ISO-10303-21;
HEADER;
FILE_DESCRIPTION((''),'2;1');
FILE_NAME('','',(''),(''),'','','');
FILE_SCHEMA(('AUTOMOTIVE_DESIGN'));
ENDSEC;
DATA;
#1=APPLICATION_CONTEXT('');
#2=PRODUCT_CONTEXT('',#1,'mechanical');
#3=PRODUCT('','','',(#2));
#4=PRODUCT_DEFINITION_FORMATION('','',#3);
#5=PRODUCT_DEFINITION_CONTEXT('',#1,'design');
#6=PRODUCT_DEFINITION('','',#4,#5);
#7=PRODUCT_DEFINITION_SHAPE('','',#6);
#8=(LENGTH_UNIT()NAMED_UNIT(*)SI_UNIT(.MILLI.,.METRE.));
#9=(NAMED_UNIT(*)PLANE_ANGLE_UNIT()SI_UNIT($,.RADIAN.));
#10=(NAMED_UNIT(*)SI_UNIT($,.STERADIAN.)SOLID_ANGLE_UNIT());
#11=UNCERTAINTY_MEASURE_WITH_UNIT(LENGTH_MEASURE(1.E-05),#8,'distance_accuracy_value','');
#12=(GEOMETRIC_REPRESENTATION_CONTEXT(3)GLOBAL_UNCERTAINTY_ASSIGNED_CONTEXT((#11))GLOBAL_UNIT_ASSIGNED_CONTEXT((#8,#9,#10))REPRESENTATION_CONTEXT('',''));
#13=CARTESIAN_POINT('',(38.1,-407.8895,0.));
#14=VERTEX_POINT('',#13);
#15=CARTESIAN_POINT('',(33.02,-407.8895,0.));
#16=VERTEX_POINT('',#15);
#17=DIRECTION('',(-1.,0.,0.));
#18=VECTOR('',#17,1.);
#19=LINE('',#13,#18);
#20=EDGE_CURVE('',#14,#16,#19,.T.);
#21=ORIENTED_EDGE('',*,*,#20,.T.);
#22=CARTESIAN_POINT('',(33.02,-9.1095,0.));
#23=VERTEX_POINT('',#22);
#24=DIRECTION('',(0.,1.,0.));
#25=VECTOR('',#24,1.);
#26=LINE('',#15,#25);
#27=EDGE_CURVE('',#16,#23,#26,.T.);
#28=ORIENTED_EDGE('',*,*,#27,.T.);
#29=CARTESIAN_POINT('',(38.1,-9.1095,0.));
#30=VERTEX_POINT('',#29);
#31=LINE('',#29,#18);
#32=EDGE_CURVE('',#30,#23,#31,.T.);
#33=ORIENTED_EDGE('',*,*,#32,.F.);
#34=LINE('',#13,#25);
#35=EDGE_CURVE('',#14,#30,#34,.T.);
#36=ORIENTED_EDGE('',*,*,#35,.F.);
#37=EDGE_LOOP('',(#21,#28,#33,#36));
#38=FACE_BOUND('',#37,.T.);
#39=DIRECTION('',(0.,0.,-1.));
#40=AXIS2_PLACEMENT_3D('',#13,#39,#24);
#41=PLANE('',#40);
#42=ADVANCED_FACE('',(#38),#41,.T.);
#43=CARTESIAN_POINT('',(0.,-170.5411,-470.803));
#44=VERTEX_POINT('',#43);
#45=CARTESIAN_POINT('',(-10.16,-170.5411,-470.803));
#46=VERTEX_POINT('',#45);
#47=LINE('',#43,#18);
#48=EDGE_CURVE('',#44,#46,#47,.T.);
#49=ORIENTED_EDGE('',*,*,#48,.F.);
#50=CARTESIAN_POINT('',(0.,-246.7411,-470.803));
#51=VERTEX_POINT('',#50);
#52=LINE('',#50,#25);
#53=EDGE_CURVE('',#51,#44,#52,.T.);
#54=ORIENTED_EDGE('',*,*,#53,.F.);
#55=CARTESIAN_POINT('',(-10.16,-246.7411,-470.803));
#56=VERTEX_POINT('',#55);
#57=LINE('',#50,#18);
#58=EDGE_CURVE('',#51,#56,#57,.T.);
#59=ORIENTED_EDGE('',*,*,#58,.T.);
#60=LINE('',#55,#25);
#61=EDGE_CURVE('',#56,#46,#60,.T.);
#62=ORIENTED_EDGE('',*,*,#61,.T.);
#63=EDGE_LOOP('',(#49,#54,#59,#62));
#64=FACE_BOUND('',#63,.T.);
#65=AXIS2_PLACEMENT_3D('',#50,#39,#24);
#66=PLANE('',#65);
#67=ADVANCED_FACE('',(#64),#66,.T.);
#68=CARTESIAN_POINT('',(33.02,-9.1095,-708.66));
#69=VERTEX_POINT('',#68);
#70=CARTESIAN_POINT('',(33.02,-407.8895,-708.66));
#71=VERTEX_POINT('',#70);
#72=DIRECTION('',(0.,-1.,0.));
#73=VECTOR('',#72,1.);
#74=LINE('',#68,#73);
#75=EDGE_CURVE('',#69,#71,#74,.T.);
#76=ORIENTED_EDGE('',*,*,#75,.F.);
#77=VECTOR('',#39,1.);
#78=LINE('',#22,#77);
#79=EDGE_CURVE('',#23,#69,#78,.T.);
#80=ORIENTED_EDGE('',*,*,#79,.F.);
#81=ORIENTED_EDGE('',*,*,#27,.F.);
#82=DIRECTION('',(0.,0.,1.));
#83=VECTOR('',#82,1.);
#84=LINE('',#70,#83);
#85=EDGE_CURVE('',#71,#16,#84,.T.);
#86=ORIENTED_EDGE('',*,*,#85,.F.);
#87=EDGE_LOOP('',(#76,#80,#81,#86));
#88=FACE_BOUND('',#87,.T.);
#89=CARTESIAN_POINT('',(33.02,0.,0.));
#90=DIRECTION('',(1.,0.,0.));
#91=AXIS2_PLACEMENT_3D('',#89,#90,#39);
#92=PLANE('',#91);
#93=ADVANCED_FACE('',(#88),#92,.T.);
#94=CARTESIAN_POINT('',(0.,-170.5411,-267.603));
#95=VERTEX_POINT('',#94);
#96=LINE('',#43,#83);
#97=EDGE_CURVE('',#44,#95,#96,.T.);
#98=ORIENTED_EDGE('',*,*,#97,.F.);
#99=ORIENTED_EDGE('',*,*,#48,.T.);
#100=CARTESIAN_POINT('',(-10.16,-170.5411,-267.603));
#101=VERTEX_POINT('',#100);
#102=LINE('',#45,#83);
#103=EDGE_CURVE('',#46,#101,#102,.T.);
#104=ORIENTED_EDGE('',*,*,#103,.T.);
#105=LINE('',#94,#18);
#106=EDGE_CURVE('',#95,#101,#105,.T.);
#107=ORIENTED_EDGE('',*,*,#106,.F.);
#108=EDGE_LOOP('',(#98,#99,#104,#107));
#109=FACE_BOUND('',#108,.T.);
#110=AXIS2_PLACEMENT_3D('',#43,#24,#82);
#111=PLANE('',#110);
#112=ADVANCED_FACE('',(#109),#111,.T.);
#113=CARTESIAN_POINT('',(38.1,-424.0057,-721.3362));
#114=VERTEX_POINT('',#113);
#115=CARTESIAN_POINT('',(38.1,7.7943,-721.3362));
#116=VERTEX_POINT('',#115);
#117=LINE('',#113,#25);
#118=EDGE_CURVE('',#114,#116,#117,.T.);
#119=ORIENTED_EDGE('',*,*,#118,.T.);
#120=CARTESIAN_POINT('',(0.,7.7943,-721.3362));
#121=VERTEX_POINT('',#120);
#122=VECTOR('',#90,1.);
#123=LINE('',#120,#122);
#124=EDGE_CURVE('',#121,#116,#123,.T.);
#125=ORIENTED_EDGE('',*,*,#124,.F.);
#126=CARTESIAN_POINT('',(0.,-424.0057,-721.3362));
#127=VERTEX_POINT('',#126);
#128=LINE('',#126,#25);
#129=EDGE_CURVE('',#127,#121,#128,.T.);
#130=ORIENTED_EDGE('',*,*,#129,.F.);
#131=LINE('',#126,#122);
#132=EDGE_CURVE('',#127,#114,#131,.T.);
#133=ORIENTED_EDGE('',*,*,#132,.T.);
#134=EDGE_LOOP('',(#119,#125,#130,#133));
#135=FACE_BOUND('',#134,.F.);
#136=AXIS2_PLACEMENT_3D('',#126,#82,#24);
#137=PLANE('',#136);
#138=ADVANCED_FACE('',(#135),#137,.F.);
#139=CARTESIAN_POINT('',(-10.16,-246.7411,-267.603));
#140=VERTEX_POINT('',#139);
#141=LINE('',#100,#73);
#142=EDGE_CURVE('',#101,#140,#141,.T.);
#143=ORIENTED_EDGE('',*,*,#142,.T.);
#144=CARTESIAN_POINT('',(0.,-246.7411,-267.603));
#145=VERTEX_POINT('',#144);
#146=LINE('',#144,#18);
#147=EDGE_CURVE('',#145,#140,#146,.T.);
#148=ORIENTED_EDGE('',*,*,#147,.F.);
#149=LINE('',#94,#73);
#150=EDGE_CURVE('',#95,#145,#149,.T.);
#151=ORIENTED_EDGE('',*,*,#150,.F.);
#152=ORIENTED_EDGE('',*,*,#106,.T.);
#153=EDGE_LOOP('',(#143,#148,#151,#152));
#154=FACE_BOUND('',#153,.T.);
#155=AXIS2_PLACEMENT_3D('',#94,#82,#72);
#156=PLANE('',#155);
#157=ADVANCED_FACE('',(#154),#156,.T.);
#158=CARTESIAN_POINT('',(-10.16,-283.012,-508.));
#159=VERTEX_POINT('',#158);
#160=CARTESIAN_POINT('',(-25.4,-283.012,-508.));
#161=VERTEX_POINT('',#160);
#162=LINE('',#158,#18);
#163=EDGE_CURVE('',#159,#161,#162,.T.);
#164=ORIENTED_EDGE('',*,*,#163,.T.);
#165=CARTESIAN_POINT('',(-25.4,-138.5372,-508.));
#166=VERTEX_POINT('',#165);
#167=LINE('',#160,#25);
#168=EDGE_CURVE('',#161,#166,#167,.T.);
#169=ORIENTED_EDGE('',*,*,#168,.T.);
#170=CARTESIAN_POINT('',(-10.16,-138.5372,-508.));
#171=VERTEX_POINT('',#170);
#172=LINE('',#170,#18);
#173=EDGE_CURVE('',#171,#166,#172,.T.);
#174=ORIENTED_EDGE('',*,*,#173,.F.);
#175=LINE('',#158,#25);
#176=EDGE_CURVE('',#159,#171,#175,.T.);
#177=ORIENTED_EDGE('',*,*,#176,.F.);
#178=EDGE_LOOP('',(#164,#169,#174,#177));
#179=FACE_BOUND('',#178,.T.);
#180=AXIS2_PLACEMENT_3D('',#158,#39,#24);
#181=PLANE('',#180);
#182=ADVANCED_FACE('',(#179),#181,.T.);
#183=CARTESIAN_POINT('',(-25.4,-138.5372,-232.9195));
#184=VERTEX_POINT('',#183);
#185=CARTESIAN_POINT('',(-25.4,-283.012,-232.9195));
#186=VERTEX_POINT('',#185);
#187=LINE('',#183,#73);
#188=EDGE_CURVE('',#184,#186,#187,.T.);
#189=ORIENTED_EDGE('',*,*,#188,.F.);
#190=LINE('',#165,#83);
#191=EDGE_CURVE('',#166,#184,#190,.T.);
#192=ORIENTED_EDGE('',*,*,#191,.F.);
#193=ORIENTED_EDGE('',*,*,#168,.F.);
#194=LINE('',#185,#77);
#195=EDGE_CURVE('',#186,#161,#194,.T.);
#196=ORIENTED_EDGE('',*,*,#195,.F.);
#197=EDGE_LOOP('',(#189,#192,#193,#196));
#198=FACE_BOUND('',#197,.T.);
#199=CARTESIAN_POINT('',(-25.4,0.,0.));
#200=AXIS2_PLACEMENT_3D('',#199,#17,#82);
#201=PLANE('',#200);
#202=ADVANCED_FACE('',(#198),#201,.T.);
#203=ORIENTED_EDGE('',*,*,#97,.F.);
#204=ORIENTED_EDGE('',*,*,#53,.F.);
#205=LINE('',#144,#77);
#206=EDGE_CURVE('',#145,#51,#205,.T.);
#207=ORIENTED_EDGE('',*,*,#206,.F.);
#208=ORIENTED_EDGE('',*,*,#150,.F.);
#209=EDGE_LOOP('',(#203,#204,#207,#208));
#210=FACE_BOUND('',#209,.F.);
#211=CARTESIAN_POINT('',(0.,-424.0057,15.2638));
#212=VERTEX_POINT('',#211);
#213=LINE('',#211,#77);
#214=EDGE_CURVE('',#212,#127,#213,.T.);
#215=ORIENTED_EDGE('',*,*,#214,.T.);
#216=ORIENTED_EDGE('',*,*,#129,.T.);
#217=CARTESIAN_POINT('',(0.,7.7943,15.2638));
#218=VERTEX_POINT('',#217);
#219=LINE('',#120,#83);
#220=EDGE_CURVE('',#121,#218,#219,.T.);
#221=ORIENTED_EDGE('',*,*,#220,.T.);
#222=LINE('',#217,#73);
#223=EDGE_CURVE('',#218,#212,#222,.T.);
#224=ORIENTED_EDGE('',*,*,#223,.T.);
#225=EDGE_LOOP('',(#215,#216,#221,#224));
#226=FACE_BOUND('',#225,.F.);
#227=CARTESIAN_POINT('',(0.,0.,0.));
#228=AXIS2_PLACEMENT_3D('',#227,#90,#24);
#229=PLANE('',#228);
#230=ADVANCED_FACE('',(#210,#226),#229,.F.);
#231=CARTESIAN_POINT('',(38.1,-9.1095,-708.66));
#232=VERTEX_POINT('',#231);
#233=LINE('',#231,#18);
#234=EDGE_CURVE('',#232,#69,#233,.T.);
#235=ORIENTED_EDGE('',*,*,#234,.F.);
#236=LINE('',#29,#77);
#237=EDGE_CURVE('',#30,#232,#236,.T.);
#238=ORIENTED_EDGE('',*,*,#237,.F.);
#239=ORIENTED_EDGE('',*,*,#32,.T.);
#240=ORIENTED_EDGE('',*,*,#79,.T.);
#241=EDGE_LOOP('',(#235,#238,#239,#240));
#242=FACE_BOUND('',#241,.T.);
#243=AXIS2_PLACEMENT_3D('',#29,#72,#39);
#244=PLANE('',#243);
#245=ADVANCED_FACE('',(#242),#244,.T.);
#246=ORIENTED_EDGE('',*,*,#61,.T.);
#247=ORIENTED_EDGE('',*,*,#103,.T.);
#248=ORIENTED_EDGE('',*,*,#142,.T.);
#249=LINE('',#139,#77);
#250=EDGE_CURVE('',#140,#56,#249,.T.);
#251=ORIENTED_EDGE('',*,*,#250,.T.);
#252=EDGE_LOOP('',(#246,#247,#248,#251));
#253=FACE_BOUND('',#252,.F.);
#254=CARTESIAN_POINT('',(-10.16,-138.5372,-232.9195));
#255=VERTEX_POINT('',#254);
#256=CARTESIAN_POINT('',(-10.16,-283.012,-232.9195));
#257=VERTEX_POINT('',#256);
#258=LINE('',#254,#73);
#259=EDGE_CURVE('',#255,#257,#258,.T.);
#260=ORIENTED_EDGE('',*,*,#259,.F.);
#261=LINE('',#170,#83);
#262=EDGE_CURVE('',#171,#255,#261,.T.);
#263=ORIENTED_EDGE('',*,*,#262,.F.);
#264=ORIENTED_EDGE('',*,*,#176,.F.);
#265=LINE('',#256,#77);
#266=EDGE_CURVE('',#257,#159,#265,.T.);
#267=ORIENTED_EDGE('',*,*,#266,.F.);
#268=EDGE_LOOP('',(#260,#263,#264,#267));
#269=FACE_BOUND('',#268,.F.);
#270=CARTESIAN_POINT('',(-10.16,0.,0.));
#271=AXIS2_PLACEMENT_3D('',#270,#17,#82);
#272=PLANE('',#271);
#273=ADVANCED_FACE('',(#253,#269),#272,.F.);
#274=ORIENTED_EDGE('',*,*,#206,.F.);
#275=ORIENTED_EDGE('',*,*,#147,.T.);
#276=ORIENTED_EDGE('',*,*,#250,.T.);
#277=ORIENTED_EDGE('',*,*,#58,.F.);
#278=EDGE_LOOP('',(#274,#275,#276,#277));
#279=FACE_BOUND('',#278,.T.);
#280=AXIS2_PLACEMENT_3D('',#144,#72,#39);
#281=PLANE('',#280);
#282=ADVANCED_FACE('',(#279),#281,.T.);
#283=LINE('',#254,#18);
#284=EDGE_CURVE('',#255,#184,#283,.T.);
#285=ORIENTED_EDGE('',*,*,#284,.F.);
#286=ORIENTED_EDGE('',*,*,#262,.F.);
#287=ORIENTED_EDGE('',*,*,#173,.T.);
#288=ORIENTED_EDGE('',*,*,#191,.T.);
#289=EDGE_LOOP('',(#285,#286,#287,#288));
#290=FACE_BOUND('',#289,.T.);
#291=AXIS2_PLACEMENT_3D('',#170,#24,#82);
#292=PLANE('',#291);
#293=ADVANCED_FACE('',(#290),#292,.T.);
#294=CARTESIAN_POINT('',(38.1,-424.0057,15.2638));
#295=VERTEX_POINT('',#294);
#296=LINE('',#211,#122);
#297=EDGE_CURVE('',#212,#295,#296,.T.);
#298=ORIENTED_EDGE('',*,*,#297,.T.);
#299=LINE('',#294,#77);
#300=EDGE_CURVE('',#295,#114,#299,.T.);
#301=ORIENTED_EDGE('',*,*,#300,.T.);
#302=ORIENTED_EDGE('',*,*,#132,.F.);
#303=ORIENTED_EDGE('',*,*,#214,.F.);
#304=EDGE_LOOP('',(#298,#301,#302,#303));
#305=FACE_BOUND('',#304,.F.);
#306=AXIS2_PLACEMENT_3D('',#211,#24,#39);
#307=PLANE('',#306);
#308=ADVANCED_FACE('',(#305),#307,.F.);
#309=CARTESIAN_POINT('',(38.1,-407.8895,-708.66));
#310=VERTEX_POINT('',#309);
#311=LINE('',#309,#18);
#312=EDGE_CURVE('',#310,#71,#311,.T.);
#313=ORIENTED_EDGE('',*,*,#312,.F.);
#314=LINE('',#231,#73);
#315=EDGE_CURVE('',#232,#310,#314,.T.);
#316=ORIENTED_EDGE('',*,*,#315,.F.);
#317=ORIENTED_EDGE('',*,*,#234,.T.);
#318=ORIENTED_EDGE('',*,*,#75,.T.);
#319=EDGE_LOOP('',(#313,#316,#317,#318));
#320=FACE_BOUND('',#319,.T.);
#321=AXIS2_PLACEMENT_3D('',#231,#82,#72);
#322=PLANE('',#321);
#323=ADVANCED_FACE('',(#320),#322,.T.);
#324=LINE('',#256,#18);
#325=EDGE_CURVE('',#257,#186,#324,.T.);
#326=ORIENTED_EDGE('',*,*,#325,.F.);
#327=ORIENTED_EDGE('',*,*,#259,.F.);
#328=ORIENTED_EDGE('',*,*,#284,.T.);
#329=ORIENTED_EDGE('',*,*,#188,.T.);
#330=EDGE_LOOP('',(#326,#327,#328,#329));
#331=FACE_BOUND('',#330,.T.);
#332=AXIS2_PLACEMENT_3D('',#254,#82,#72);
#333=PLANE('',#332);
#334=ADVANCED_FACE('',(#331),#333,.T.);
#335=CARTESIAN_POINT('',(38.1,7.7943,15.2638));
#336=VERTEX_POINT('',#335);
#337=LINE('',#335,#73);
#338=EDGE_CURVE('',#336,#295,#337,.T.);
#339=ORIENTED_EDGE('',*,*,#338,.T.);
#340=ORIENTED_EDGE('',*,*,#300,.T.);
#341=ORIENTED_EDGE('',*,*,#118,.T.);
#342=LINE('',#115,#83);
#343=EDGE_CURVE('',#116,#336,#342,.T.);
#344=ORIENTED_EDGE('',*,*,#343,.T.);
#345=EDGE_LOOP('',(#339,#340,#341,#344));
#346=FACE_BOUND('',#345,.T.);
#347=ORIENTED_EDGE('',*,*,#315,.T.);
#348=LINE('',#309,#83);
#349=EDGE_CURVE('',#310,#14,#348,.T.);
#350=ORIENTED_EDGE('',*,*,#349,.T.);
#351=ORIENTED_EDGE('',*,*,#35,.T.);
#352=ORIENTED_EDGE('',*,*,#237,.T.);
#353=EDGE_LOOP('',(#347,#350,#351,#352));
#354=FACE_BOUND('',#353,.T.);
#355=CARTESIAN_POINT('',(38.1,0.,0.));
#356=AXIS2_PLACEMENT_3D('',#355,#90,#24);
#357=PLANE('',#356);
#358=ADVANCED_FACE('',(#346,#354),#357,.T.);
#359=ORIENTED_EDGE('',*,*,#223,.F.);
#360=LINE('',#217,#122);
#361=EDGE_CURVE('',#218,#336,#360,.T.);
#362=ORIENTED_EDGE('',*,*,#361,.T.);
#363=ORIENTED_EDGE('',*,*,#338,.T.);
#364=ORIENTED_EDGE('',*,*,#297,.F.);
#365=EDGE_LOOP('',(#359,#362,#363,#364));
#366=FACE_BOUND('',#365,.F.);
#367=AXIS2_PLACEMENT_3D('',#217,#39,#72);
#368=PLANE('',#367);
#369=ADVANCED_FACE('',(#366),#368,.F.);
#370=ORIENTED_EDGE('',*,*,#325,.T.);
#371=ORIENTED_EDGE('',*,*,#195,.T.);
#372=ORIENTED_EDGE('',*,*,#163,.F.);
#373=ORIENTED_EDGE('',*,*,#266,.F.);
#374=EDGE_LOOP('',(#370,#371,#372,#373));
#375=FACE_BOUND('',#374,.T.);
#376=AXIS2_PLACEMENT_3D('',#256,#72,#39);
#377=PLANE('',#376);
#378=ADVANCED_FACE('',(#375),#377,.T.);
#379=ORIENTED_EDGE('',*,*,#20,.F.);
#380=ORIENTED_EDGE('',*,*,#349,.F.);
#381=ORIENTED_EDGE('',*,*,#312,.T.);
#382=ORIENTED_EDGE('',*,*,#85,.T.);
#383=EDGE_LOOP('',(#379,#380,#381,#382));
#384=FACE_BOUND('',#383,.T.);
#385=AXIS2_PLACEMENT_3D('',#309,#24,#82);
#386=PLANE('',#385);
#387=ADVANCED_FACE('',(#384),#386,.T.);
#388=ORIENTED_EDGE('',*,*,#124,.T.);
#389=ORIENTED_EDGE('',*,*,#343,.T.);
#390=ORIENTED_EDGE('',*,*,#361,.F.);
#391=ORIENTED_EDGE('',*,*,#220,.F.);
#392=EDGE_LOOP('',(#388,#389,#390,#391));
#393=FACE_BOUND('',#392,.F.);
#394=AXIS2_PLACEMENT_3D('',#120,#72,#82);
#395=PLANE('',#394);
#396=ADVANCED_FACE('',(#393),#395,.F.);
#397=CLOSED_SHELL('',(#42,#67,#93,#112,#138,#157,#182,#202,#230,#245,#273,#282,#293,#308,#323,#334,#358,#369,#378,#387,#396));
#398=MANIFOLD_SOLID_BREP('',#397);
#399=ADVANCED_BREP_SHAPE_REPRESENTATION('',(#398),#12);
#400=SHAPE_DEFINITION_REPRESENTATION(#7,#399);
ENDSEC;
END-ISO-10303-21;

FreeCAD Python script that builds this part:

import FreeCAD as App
import Part
import Sketcher

V = App.Vector
Q = App.Units.Quantity

doc = App.newDocument("Part")
params = doc.addObject("Spreadsheet::Sheet", "Params")
for row, (alias, value) in enumerate([
    ("sketch1_width", "17 in"),
    ("sketch1_height", "29 in"),
    ("pad1_length", "1.5 in"),
    ("sketch2_width", "15.7 in"),
    ("sketch2_height", "27.9 in"),
    ("pocket1_length", "0.2 in"),
    ("sketch3_width", "3 in"),
    ("sketch3_height", "8 in"),
    ("pad2_length", "0.4 in"),
    ("pad3_length", "0.6 in"),
], start=1):
    params.set(f"A{row}", alias)
    params.set(f"B{row}", "=" + value)
    params.setAlias(f"B{row}", alias)

body = doc.addObject("PartDesign::Body", "Body")

# Sketch on YZ plane
sketch1 = body.newObject("Sketcher::SketchObject", "Sketch")
sketch1.AttachmentSupport = (doc.getObject("YZ_Plane"), [""])
sketch1.MapMode = "FlatFace"
sketch1.addGeometry([
    Part.LineSegment(V(8, -721, 0), V(8, 15, 0)),
    Part.LineSegment(V(8, 15, 0), V(-424, 15, 0)),
    Part.LineSegment(V(-424, 15, 0), V(-424, -721, 0)),
    Part.LineSegment(V(-424, -721, 0), V(8, -721, 0)),
], False)
sketch1.addConstraint([
    Sketcher.Constraint("Coincident", 0, 2, 1, 1),
    Sketcher.Constraint("Coincident", 1, 2, 2, 1),
    Sketcher.Constraint("Coincident", 2, 2, 3, 1),
    Sketcher.Constraint("Coincident", 3, 2, 0, 1),
    Sketcher.Constraint("Vertical", 0),
    Sketcher.Constraint("Horizontal", 1),
    Sketcher.Constraint("Vertical", 2),
    Sketcher.Constraint("Horizontal", 3),
    Sketcher.Constraint("DistanceX", 1, 2, 1, 1, Q("17 in")),
    Sketcher.Constraint("DistanceY", 0, 1, 0, 2, Q("29 in")),
    Sketcher.Constraint("DistanceX", -1, 1, 0, 2, Q("7.7943 mm")),
    Sketcher.Constraint("DistanceY", -1, 1, 0, 2, Q("15.2638 mm")),
])
sketch1.setExpression("Constraints[8]", "Params.sketch1_width")
sketch1.setExpression("Constraints[9]", "Params.sketch1_height")
pad1 = body.newObject("PartDesign::Pad", "Pad")
pad1.Profile = sketch1
pad1.setExpression("Length", "Params.pad1_length")

# Sketch on YZ plane
sketch2 = body.newObject("Sketcher::SketchObject", "Sketch001")
sketch2.AttachmentSupport = (doc.getObject("YZ_Plane"), [""])
sketch2.MapMode = "FlatFace"
sketch2.AttachmentOffset = App.Placement(V(0, 0, 1.5 * 25.4), App.Rotation())
sketch2.addGeometry([
    Part.LineSegment(V(-9, -709, 0), V(-9, 0, 0)),
    Part.LineSegment(V(-9, 0, 0), V(-408, 0, 0)),
    Part.LineSegment(V(-408, 0, 0), V(-408, -709, 0)),
    Part.LineSegment(V(-408, -709, 0), V(-9, -709, 0)),
], False)
sketch2.addConstraint([
    Sketcher.Constraint("Coincident", 0, 2, 1, 1),
    Sketcher.Constraint("Coincident", 1, 2, 2, 1),
    Sketcher.Constraint("Coincident", 2, 2, 3, 1),
    Sketcher.Constraint("Coincident", 3, 2, 0, 1),
    Sketcher.Constraint("Vertical", 0),
    Sketcher.Constraint("Horizontal", 1),
    Sketcher.Constraint("Vertical", 2),
    Sketcher.Constraint("Horizontal", 3),
    Sketcher.Constraint("PointOnObject", 0, 2, -1),
    Sketcher.Constraint("DistanceX", 1, 2, 1, 1, Q("15.7 in")),
    Sketcher.Constraint("DistanceY", 0, 1, 0, 2, Q("27.9 in")),
    Sketcher.Constraint("DistanceX", 0, 2, -1, 1, Q("9.1095 mm")),
])
sketch2.setExpression("Constraints[9]", "Params.sketch2_width")
sketch2.setExpression("Constraints[10]", "Params.sketch2_height")
pocket1 = body.newObject("PartDesign::Pocket", "Pocket")
pocket1.Profile = sketch2
pocket1.setExpression("Length", "Params.pocket1_length")

# Sketch on YZ plane
sketch3 = body.newObject("Sketcher::SketchObject", "Sketch002")
sketch3.AttachmentSupport = (doc.getObject("YZ_Plane"), [""])
sketch3.MapMode = "FlatFace"
sketch3.addGeometry([
    Part.LineSegment(V(-171, -268, 0), V(-171, -471, 0)),
    Part.LineSegment(V(-171, -471, 0), V(-247, -471, 0)),
    Part.LineSegment(V(-247, -471, 0), V(-247, -268, 0)),
    Part.LineSegment(V(-247, -268, 0), V(-171, -268, 0)),
], False)
sketch3.addConstraint([
    Sketcher.Constraint("Coincident", 0, 2, 1, 1),
    Sketcher.Constraint("Coincident", 1, 2, 2, 1),
    Sketcher.Constraint("Coincident", 2, 2, 3, 1),
    Sketcher.Constraint("Coincident", 3, 2, 0, 1),
    Sketcher.Constraint("Vertical", 0),
    Sketcher.Constraint("Horizontal", 1),
    Sketcher.Constraint("Vertical", 2),
    Sketcher.Constraint("Horizontal", 3),
    Sketcher.Constraint("DistanceX", 1, 2, 1, 1, Q("3 in")),
    Sketcher.Constraint("DistanceY", 0, 2, 0, 1, Q("8 in")),
    Sketcher.Constraint("DistanceX", 0, 2, -1, 1, Q("170.541 mm")),
    Sketcher.Constraint("DistanceY", 0, 2, -1, 1, Q("470.803 mm")),
])
sketch3.setExpression("Constraints[8]", "Params.sketch3_width")
sketch3.setExpression("Constraints[9]", "Params.sketch3_height")
pad2 = body.newObject("PartDesign::Pad", "Pad001")
pad2.Profile = sketch3
pad2.setExpression("Length", "Params.pad2_length")
pad2.Reversed = True

# Sketch on YZ plane
sketch4 = body.newObject("Sketcher::SketchObject", "Sketch003")
sketch4.AttachmentSupport = (doc.getObject("YZ_Plane"), [""])
sketch4.MapMode = "FlatFace"
sketch4.AttachmentOffset = App.Placement(V(0, 0, -0.4 * 25.4), App.Rotation())
sketch4.addGeometry([
    Part.LineSegment(V(-139, -233, 0), V(-139, -508, 0)),
    Part.LineSegment(V(-139, -508, 0), V(-283, -508, 0)),
    Part.LineSegment(V(-283, -508, 0), V(-283, -233, 0)),
    Part.LineSegment(V(-283, -233, 0), V(-139, -233, 0)),
], False)
sketch4.addConstraint([
    Sketcher.Constraint("Coincident", 0, 2, 1, 1),
    Sketcher.Constraint("Coincident", 1, 2, 2, 1),
    Sketcher.Constraint("Coincident", 2, 2, 3, 1),
    Sketcher.Constraint("Coincident", 3, 2, 0, 1),
    Sketcher.Constraint("Vertical", 0),
    Sketcher.Constraint("Horizontal", 1),
    Sketcher.Constraint("Vertical", 2),
    Sketcher.Constraint("Horizontal", 3),
    Sketcher.Constraint("DistanceY", 0, 2, -1, 1, Q("20 in")),
    Sketcher.Constraint("DistanceX", 1, 2, 1, 1, Q("144.4748 mm")),
    Sketcher.Constraint("DistanceY", 0, 2, 0, 1, Q("275.0805 mm")),
    Sketcher.Constraint("DistanceX", 1, 2, -1, 1, Q("11.1422 in")),
])
pad3 = body.newObject("PartDesign::Pad", "Pad002")
pad3.Profile = sketch4
pad3.setExpression("Length", "Params.pad3_length")
pad3.Reversed = True

doc.recompute()
